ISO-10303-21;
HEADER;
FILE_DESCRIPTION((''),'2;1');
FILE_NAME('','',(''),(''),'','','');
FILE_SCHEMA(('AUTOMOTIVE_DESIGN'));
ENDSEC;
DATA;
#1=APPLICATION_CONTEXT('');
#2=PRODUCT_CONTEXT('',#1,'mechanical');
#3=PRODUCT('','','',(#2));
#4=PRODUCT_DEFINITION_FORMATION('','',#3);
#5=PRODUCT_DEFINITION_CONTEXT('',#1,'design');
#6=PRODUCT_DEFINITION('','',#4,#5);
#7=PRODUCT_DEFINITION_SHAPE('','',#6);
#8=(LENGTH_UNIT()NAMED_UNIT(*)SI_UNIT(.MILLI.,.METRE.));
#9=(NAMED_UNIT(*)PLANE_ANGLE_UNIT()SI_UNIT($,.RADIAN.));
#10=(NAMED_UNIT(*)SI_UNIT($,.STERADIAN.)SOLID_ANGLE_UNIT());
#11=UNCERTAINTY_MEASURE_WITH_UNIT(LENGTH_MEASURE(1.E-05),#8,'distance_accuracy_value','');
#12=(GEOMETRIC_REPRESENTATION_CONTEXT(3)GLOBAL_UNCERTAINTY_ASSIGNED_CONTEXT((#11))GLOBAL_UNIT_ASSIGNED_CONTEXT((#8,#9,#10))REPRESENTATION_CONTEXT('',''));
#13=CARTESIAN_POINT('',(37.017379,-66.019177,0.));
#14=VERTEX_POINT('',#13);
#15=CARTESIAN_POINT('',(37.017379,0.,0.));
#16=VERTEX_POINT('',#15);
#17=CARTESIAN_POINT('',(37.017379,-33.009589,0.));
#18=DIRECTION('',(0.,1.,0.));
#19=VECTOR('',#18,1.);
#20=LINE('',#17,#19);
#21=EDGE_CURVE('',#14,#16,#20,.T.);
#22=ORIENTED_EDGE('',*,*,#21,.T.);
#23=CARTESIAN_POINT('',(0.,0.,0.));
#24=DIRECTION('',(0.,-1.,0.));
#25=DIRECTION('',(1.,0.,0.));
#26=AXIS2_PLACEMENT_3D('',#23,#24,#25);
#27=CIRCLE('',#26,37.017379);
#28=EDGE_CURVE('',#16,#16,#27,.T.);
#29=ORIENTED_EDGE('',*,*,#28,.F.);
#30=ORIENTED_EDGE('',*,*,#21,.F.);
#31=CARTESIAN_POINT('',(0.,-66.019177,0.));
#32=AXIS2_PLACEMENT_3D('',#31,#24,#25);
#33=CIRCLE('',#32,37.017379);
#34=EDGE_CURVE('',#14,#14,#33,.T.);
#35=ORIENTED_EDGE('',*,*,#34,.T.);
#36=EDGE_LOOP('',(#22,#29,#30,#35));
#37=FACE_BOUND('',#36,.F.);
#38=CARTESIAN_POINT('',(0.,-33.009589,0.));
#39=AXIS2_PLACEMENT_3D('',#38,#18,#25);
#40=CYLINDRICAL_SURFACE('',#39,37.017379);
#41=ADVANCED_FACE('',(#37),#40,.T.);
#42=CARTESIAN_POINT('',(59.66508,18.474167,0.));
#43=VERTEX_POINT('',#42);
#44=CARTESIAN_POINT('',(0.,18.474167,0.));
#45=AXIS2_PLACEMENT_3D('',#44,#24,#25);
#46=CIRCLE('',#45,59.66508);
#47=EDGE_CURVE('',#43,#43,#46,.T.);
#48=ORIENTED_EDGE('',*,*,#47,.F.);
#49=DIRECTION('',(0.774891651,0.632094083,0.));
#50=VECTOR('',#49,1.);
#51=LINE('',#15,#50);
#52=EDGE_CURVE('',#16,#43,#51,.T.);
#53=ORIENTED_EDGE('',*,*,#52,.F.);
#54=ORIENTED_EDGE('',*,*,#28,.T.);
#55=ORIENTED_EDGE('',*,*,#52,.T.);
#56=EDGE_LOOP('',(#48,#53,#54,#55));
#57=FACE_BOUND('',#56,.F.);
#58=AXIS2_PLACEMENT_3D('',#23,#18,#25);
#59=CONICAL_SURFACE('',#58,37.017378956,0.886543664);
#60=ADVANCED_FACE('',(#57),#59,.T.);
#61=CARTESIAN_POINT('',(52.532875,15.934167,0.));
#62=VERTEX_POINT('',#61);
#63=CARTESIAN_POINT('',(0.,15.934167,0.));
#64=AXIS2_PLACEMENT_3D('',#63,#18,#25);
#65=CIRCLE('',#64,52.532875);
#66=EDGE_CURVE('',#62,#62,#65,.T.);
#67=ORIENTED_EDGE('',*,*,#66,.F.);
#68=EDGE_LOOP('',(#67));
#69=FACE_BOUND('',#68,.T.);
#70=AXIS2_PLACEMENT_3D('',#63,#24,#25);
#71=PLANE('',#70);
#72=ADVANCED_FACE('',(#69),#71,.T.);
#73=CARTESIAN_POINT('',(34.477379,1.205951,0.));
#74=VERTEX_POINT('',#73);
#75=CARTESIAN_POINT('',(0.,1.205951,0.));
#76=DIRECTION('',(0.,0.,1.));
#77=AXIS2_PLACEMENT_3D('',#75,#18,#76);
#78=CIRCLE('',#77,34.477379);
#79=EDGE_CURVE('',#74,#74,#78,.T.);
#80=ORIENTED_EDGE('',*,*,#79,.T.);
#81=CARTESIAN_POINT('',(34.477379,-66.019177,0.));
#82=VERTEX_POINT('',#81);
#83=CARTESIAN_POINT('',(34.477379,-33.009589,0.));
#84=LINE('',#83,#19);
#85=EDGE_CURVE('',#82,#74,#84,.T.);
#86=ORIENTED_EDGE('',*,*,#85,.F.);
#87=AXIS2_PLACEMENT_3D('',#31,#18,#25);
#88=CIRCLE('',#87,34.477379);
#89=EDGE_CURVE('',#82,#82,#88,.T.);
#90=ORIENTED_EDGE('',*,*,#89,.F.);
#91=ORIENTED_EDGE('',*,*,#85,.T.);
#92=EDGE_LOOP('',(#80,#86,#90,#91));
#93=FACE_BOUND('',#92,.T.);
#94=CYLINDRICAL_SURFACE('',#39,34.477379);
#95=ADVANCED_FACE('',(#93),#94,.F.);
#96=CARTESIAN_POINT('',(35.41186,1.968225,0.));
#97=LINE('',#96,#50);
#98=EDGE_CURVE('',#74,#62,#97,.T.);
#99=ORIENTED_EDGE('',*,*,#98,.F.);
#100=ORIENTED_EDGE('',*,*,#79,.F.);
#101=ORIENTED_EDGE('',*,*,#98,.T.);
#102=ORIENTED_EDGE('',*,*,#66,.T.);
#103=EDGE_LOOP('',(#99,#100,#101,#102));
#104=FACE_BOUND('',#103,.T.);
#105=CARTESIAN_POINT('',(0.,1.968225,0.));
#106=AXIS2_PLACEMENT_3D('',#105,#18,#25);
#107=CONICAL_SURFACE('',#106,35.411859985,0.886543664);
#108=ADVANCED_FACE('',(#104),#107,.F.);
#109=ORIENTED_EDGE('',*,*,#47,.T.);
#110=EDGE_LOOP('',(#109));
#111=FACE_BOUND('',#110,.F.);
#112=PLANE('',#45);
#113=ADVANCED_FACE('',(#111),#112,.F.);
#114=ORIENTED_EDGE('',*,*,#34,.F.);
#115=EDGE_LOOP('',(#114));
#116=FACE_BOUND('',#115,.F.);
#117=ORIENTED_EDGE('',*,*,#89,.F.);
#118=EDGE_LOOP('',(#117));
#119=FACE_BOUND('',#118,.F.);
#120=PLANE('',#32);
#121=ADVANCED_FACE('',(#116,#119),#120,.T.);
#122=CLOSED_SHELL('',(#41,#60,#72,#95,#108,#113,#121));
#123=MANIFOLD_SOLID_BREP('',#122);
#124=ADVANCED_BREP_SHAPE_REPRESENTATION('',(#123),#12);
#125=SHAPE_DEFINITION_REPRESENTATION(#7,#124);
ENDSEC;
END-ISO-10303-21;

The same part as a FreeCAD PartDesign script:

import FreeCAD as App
import Part
import Sketcher
from FreeCAD import Vector
Q = App.Units.Quantity


def faces_at(feature, points):
    """Names of the faces that lie closest to the given points."""
    faces = feature.Shape.Faces
    near = lambda p: min(range(len(faces)), key=lambda i: faces[i].distToShape(Part.Vertex(*p))[0])
    return sorted({f"Face{near(p) + 1}" for p in points})


def add_polygon(sketch, points):
    """Adds a closed chain of lines whose ends are joined by coincident constraints."""
    first, n = sketch.GeometryCount, len(points)
    for a, b in zip(points, points[1:] + points[:1]):
        sketch.addGeometry(Part.LineSegment(App.Vector(*a, 0), App.Vector(*b, 0)), False)
    for i in range(n):
        sketch.addConstraint(Sketcher.Constraint("Coincident", first + i, 2, first + (i + 1) % n, 1))

doc = App.newDocument("Part")
body = doc.addObject("PartDesign::Body", "Body")

# Sketch on XY plane
sketch1 = doc.addObject("Sketcher::SketchObject", "Sketch")
body.addObject(sketch1)
sketch1.AttachmentSupport = (doc.XY_Plane, [""])
sketch1.MapMode = "FlatFace"
add_polygon(sketch1, [(0, 18), (0, -66), (37, -66), (37, 0), (60, 18)])  # lines 0-4
sketch1.addConstraint([
    Sketcher.Constraint("Vertical", 0),
    Sketcher.Constraint("Horizontal", 1),
    Sketcher.Constraint("Vertical", 2),
    Sketcher.Constraint("Horizontal", 4),
    Sketcher.Constraint("PointOnObject", 0, 2, -2),
    Sketcher.Constraint("PointOnObject", 2, 2, -1),
    Sketcher.Constraint("DistanceX", 1, 1, 1, 2, Q("37.017379 mm")),
    Sketcher.Constraint("DistanceX", 4, 2, 4, 1, Q("59.66508 mm")),
    Sketcher.Constraint("DistanceY", 0, 2, 0, 1, Q("84.493345 mm")),
    Sketcher.Constraint("DistanceY", 2, 1, 2, 2, Q("66.019177 mm")),
])
revolution = doc.addObject("PartDesign::Revolution", "Revolution")
body.addObject(revolution)
revolution.Profile = sketch1
revolution.ReferenceAxis = (sketch1, ["V_Axis"])
revolution.Angle = 360
doc.recompute()

thickness = doc.addObject("PartDesign::Thickness", "Thickness")
body.addObject(thickness)
thickness.Base = (revolution, faces_at(revolution, [(0, -66.019, 0)]))
thickness.Value = Q("0.1 in")
thickness.Reversed = True
thickness.Join = "Intersection"

doc.recompute()
